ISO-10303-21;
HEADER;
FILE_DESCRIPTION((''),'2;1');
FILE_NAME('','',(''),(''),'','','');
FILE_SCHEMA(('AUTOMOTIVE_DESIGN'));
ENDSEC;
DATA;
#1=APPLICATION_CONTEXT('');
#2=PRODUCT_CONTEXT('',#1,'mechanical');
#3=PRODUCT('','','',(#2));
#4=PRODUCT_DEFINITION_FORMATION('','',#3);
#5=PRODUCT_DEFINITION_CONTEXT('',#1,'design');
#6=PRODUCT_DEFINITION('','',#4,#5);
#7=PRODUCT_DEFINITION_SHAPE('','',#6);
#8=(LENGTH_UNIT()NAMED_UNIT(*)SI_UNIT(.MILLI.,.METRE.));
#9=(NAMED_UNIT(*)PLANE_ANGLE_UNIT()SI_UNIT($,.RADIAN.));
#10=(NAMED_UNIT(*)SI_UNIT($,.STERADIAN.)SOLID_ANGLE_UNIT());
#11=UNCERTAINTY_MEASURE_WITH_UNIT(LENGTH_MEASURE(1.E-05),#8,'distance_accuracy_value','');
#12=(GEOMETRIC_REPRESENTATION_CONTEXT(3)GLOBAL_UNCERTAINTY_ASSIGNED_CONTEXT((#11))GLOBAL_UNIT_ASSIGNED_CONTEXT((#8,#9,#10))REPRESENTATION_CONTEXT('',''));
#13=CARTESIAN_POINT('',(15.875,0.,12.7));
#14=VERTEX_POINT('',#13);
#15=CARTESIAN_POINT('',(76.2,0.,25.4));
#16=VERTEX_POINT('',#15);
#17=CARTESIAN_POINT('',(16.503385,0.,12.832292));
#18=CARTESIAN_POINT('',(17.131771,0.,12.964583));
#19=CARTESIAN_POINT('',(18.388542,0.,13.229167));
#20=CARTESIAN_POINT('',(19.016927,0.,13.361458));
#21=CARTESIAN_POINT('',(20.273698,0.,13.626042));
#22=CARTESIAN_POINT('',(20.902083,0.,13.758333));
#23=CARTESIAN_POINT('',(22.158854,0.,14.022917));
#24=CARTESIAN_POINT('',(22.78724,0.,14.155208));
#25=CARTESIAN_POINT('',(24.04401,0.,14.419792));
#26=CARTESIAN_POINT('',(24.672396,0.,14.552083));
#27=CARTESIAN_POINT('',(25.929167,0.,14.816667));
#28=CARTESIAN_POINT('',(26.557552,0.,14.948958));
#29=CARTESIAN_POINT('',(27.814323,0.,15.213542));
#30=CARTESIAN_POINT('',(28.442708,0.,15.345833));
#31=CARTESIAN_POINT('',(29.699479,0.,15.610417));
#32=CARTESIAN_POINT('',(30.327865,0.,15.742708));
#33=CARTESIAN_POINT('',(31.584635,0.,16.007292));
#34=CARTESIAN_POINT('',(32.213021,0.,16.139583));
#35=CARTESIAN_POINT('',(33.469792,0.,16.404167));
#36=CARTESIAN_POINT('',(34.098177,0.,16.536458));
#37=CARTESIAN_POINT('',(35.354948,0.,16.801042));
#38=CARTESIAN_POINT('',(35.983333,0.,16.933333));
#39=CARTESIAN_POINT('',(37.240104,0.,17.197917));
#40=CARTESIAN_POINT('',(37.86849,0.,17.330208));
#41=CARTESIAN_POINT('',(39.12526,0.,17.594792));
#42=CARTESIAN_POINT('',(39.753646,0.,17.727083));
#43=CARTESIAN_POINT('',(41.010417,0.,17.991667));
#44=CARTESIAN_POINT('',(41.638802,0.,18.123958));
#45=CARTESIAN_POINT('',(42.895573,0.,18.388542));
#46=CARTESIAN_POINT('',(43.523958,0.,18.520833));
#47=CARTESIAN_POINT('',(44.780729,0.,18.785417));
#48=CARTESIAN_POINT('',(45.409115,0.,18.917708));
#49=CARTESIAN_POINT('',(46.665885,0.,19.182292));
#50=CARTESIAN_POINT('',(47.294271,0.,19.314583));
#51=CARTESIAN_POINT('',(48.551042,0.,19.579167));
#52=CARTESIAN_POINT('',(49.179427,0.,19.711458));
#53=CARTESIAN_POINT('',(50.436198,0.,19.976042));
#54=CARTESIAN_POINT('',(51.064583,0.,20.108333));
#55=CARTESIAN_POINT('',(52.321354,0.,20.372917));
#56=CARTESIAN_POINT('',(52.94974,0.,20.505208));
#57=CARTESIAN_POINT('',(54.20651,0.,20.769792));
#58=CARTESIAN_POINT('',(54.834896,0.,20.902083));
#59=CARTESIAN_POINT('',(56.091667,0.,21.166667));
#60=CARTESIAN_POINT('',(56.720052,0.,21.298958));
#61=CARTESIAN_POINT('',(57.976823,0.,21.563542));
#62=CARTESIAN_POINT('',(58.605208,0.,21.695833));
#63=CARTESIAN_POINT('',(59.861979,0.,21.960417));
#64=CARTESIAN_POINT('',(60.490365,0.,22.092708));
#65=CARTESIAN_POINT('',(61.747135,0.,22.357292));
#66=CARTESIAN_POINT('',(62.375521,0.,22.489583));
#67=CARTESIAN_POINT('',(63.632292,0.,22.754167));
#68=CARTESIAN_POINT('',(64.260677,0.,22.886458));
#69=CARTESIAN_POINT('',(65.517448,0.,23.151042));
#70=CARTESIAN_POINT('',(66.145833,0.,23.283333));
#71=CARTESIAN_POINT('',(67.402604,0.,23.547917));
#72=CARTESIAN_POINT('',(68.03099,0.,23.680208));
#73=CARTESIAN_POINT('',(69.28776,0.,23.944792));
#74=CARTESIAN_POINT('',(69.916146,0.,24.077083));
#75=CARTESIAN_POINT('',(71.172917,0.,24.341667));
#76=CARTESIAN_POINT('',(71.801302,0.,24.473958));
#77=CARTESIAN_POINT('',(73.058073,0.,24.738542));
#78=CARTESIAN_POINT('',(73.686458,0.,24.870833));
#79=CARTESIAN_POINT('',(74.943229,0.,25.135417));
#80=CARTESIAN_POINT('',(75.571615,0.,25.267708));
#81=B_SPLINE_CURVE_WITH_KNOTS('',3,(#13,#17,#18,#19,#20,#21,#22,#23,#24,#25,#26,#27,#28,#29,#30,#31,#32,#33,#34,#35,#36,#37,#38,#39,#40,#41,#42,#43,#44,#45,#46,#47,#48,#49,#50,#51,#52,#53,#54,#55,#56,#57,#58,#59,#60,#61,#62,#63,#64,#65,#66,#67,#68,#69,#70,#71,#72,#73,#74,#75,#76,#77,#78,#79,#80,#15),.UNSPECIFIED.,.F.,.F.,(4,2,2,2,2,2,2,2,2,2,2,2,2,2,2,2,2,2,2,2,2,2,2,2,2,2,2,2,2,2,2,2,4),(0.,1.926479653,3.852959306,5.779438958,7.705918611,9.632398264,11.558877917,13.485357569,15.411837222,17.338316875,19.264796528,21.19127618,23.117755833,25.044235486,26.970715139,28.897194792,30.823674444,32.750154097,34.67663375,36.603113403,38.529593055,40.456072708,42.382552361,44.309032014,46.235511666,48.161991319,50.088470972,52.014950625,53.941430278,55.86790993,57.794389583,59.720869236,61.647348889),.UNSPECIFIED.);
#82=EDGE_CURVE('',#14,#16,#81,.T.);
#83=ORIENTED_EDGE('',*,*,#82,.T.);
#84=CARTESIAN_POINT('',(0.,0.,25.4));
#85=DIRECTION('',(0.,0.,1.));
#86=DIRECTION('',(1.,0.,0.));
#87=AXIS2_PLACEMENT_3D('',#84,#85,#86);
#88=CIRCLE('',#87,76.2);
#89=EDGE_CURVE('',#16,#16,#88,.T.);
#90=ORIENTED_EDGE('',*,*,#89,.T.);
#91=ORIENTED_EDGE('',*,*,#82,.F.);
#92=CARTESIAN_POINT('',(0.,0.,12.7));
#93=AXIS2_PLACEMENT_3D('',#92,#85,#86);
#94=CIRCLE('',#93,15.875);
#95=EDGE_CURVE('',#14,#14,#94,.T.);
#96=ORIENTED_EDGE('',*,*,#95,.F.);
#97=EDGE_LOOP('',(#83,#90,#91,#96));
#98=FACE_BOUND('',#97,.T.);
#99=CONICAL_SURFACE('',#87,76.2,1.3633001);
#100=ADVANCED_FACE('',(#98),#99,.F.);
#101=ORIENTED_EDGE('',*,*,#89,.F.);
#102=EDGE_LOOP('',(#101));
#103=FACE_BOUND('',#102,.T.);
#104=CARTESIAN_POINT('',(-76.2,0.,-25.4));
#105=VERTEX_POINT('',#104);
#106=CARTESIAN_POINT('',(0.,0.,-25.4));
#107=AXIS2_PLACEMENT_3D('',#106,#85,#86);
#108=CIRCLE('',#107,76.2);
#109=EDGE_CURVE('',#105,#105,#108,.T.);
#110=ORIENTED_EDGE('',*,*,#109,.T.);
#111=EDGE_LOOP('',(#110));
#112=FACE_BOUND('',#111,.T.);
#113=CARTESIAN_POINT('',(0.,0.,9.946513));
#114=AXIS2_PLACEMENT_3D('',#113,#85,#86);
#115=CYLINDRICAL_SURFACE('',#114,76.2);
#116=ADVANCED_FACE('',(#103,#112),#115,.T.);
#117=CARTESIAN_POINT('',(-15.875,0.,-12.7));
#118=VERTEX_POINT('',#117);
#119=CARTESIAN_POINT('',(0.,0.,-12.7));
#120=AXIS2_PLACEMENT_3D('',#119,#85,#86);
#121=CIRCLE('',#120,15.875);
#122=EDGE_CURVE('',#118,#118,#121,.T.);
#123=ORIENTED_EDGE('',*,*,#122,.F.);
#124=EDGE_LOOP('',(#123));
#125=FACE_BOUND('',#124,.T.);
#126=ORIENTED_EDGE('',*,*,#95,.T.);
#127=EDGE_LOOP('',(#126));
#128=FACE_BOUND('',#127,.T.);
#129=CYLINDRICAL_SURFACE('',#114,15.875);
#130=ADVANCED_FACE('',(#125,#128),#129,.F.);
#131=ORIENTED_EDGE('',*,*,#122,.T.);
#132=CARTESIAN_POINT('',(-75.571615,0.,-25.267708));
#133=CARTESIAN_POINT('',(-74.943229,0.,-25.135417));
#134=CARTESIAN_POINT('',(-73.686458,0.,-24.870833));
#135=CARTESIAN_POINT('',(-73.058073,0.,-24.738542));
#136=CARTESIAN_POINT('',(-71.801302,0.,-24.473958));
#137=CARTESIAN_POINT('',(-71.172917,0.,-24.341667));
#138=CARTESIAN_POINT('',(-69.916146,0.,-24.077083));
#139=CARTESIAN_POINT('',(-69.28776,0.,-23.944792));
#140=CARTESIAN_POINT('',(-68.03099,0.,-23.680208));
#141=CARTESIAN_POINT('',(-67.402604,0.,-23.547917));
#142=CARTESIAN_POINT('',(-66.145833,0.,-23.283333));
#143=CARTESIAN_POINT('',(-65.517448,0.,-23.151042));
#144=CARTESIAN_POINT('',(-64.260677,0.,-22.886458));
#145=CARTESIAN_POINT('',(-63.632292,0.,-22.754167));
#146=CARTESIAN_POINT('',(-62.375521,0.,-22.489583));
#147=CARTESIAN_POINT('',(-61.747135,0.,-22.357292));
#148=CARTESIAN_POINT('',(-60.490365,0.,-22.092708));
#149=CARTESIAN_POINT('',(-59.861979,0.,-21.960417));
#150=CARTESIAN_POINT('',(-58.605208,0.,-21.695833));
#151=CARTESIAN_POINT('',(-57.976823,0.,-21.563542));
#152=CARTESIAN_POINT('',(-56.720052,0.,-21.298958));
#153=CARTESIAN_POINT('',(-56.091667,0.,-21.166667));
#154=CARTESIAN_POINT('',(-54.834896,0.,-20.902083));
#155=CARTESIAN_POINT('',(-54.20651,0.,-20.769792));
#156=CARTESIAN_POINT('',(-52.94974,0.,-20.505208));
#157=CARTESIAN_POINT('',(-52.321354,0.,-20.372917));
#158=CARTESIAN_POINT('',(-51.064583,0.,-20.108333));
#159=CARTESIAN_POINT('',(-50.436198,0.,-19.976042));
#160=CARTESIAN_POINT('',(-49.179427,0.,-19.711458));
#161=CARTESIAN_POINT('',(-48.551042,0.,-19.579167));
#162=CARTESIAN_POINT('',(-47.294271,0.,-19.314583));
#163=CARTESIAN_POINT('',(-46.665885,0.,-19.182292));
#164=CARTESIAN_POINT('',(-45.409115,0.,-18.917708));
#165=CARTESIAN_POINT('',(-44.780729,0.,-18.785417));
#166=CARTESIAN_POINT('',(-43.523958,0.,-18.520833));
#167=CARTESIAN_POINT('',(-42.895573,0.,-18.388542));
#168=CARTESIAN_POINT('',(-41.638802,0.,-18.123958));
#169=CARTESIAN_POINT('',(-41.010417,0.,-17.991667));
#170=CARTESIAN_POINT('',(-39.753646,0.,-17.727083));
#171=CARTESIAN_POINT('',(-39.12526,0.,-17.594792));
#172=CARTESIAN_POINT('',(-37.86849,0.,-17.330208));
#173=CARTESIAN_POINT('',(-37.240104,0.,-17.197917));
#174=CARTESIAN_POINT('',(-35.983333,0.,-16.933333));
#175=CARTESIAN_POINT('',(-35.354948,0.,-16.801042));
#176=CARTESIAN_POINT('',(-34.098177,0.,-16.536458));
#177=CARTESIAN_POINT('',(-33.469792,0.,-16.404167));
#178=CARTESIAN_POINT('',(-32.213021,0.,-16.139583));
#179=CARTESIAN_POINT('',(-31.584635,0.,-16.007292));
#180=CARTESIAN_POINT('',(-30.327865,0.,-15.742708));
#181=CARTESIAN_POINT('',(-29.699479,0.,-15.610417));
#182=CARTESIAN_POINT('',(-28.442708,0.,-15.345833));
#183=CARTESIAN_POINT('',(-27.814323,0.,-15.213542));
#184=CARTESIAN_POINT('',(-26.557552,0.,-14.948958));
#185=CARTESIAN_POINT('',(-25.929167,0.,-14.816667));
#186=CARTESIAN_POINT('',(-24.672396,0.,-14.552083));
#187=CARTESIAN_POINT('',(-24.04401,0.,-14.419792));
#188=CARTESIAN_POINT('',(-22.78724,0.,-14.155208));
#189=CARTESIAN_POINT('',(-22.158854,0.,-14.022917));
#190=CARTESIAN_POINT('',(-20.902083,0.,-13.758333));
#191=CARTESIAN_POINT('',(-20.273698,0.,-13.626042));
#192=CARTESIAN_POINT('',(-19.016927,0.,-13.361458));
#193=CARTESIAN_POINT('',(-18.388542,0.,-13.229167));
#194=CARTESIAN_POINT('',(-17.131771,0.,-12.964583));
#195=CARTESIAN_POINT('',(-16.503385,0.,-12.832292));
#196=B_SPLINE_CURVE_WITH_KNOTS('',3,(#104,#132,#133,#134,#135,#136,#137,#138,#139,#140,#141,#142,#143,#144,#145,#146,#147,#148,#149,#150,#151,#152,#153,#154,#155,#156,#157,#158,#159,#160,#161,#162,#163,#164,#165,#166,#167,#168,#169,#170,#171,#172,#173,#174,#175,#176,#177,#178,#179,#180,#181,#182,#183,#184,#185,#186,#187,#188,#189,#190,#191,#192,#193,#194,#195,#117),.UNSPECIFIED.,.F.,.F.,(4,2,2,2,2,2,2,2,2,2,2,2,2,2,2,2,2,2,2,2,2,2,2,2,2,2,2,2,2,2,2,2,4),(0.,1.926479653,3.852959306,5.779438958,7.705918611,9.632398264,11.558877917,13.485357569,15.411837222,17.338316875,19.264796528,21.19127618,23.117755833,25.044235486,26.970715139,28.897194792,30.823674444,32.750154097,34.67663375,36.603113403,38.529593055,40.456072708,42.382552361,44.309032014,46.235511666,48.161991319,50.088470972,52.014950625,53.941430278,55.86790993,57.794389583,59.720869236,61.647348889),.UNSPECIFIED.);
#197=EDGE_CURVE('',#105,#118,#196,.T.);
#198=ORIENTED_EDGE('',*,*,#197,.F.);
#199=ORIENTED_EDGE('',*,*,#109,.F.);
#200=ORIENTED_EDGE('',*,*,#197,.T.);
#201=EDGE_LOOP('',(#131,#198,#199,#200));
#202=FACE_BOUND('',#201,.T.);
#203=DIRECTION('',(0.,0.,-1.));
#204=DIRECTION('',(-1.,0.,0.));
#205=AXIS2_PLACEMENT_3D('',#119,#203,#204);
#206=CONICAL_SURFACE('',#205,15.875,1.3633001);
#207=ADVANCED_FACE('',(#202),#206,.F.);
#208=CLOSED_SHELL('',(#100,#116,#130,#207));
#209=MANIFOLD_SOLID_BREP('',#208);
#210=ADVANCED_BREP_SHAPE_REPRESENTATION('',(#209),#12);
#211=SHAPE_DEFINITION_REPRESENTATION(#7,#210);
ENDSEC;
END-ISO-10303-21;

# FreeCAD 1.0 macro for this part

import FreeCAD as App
import Part
import Sketcher

V = App.Vector
Q = App.Units.Quantity

doc = App.newDocument("Part")
params = doc.addObject("Spreadsheet::Sheet", "Params")
for row, (alias, value) in enumerate([
    ("sketch1_height", "1 in"),
    ("sketch1_height2", "2 in"),
    ("revolution_angle", "360 deg"),
], start=1):
    params.set(f"A{row}", alias)
    params.set(f"B{row}", "=" + value)
    params.setAlias(f"B{row}", alias)

body = doc.addObject("PartDesign::Body", "Body")

sketch1 = body.newObject("Sketcher::SketchObject", "Sketch")
sketch1.AttachmentSupport = (doc.getObject("YZ_Plane"), [""])
sketch1.MapMode = "FlatFace"
sketch1.addGeometry(Part.LineSegment(V(16, 13, 0), V(16, -13, 0)), False)
sketch1.addGeometry(Part.LineSegment(V(16, -13, 0), V(76, -25, 0)), False)
sketch1.addGeometry(Part.LineSegment(V(76, -25, 0), V(76, 25, 0)), False)
sketch1.addGeometry(Part.LineSegment(V(76, 25, 0), V(16, 13, 0)), False)
sketch1.addConstraint(Sketcher.Constraint("Coincident", 0, 2, 1, 1))
sketch1.addConstraint(Sketcher.Constraint("Coincident", 1, 2, 2, 1))
sketch1.addConstraint(Sketcher.Constraint("Coincident", 2, 2, 3, 1))
sketch1.addConstraint(Sketcher.Constraint("Coincident", 3, 2, 0, 1))
sketch1.addConstraint(Sketcher.Constraint("Vertical", 0))
sketch1.addConstraint(Sketcher.Constraint("Vertical", 2))
sketch1.addConstraint(Sketcher.Constraint("Equal", 1, 3))
sketch1.addConstraint(Sketcher.Constraint("DistanceY", 0, 2, 0, 1, Q("1 in")))
sketch1.addConstraint(Sketcher.Constraint("DistanceY", 2, 1, 2, 2, Q("2 in")))
sketch1.addConstraint(Sketcher.Constraint("DistanceX", -1, 1, 1, 2, Q("3 in")))
sketch1.addConstraint(Sketcher.Constraint("DistanceY", 1, 2, -1, 1, Q("1 in")))
sketch1.addConstraint(Sketcher.Constraint("DistanceX", -1, 1, 0, 2, Q("0.625 in")))
sketch1.setExpression("Constraints[7]", "Params.sketch1_height")
sketch1.setExpression("Constraints[8]", "Params.sketch1_height2")
revolution = body.newObject("PartDesign::Revolution", "Revolution")
revolution.Profile = sketch1
revolution.ReferenceAxis = (sketch1, ["V_Axis"])
revolution.setExpression("Angle", "Params.revolution_angle")

doc.recompute()
